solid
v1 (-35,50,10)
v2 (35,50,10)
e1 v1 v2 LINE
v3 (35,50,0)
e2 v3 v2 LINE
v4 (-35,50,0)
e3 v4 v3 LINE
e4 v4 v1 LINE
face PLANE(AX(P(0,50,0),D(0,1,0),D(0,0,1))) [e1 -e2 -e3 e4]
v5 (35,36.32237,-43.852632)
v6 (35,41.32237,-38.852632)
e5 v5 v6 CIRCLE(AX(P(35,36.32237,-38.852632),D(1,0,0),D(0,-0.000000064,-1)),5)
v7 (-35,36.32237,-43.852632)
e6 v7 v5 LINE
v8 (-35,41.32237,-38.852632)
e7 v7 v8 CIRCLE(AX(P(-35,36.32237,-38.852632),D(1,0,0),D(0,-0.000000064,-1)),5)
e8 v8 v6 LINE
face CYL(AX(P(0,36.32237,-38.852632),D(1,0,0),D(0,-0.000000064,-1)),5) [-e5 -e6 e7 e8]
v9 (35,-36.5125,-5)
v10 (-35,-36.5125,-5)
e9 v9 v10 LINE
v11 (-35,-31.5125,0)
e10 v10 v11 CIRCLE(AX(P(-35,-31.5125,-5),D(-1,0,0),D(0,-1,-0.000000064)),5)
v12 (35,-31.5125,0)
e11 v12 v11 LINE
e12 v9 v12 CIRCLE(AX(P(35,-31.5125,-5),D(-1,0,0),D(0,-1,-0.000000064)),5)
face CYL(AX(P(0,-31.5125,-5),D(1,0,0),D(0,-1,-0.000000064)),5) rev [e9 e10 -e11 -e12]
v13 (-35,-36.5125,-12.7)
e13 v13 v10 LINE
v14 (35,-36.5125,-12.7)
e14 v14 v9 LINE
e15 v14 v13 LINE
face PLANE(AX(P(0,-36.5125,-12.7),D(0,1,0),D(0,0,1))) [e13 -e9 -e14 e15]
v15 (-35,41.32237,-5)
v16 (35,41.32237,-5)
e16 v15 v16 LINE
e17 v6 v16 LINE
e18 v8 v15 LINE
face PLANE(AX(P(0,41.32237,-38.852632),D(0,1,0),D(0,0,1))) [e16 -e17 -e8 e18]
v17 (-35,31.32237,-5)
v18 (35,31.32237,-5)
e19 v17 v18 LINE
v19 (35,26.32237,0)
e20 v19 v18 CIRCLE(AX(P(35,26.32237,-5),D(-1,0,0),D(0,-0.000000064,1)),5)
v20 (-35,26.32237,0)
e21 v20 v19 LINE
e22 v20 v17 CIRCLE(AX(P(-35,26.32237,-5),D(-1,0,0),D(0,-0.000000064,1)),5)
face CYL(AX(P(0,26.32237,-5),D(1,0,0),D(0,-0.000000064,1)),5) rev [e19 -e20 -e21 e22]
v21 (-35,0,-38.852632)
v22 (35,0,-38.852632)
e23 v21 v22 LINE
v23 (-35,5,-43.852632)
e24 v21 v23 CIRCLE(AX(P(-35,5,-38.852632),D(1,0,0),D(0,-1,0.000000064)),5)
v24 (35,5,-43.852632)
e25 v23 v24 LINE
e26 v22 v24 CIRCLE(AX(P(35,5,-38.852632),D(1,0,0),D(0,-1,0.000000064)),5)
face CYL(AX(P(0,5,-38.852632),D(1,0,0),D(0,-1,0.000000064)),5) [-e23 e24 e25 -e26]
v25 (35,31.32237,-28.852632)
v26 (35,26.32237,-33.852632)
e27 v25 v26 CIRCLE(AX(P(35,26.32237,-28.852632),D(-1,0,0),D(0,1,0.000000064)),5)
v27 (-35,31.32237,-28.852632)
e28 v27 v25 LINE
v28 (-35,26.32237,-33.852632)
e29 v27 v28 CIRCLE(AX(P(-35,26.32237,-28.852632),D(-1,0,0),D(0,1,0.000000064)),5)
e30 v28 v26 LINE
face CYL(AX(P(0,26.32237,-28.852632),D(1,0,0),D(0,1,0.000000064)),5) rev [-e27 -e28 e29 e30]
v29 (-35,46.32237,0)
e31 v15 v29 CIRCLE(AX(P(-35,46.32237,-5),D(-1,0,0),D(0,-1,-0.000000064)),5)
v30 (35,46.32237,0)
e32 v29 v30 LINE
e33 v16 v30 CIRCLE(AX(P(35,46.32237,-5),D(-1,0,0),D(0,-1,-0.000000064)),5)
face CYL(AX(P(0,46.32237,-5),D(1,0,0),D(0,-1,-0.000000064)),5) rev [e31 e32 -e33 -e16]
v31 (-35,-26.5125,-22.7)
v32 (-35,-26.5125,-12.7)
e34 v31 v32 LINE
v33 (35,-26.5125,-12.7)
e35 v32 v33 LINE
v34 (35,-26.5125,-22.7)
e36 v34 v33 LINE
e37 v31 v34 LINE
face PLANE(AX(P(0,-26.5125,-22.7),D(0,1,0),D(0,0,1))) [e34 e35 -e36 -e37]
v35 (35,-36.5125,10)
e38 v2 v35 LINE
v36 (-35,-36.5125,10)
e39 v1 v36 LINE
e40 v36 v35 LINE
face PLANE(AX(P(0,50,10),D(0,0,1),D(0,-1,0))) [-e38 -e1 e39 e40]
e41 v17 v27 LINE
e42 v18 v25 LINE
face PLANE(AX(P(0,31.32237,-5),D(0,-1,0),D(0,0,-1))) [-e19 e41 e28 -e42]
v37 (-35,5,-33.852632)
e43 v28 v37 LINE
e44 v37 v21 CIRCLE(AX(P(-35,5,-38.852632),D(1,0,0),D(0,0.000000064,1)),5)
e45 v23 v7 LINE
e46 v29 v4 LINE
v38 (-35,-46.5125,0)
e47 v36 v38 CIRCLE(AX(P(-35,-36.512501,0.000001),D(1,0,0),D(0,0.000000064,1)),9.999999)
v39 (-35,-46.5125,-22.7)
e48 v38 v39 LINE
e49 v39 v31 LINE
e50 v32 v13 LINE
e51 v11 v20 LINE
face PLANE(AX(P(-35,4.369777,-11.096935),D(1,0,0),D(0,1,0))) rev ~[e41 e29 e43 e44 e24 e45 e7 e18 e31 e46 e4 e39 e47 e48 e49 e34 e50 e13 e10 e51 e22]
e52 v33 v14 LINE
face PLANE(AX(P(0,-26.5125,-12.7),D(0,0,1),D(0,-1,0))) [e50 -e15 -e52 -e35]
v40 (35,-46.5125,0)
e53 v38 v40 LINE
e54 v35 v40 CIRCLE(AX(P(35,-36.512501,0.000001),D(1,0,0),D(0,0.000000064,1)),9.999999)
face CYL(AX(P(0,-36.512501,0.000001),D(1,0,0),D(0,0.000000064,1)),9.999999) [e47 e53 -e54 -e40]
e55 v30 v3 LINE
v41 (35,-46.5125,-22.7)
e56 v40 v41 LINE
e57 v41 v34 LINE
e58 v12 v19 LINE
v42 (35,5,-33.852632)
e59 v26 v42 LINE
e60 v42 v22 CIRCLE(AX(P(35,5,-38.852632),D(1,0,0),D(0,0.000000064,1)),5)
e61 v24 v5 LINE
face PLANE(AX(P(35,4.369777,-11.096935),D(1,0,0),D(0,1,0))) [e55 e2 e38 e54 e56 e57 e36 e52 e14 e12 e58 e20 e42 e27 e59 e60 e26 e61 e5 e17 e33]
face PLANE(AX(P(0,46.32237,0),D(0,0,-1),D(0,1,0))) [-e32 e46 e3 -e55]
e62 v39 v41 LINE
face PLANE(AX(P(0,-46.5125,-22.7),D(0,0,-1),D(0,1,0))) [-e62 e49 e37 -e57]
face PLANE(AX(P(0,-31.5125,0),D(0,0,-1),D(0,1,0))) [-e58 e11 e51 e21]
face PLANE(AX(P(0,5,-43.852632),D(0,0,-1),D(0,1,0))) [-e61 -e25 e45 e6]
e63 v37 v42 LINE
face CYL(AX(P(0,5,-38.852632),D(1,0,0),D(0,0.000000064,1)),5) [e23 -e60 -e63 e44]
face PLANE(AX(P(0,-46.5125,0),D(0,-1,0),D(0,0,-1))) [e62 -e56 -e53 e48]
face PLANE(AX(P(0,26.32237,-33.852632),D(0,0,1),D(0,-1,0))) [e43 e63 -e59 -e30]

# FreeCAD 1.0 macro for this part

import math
import FreeCAD as App
import Part
import Sketcher
from FreeCAD import Vector
Q = App.Units.Quantity

doc = App.newDocument("Part")
params = doc.addObject("Spreadsheet::Sheet", "Params")
for row, (alias, value) in enumerate([
    ("sketch1_radius", "5 mm"),
    ("sketch1_radius2", "9.999999 mm"),
    ("sketch1_height", "22.7 mm"),
    ("pad1_length", "70 mm"),
], start=1):
    params.set(f"A{row}", alias)
    params.set(f"B{row}", "=" + value)
    params.setAlias(f"B{row}", alias)

body = doc.addObject("PartDesign::Body", "Body")

sketch1 = body.newObject("Sketcher::SketchObject", "Sketch")
sketch1.AttachmentSupport = (doc.getObject("YZ_Plane"), [""])
sketch1.MapMode = "FlatFace"
sketch1.addGeometry(Part.LineSegment(Vector(-31.5, 0, 0), Vector(26.3, 0, 0)), False)
sketch1.addGeometry(Part.ArcOfCircle(Part.Circle(Vector(26.3, -5, 0), Vector(0, 0, 1), 5), math.radians(0), math.radians(90)), False)
sketch1.addGeometry(Part.LineSegment(Vector(31.3, -5, 0), Vector(31.3, -28.9, 0)), False)
sketch1.addGeometry(Part.ArcOfCircle(Part.Circle(Vector(26.3, -28.9, 0), Vector(0, 0, 1), 5), math.radians(-90), math.radians(0)), False)
sketch1.addGeometry(Part.LineSegment(Vector(26.3, -33.9, 0), Vector(5, -33.9, 0)), False)
sketch1.addGeometry(Part.ArcOfCircle(Part.Circle(Vector(5, -38.9, 0), Vector(0, 0, 1), 5), math.radians(90), math.radians(180)), False)
sketch1.addGeometry(Part.ArcOfCircle(Part.Circle(Vector(5, -38.9, 0), Vector(0, 0, 1), 5), math.radians(180), math.radians(270)), False)
sketch1.addGeometry(Part.LineSegment(Vector(5, -43.9, 0), Vector(36.3, -43.9, 0)), False)
sketch1.addGeometry(Part.ArcOfCircle(Part.Circle(Vector(36.3, -38.9, 0), Vector(0, 0, 1), 5), math.radians(-90), math.radians(0)), False)
sketch1.addGeometry(Part.LineSegment(Vector(41.3, -38.9, 0), Vector(41.3, -5, 0)), False)
sketch1.addGeometry(Part.ArcOfCircle(Part.Circle(Vector(46.3, -5, 0), Vector(0, 0, 1), 5), math.radians(90), math.radians(180)), False)
sketch1.addGeometry(Part.LineSegment(Vector(46.3, 0, 0), Vector(50, 0, 0)), False)
sketch1.addGeometry(Part.LineSegment(Vector(50, 0, 0), Vector(50, 10, 0)), False)
sketch1.addGeometry(Part.LineSegment(Vector(50, 10, 0), Vector(-36.5, 10, 0)), False)
sketch1.addGeometry(Part.ArcOfCircle(Part.Circle(Vector(-36.5, 0, 0), Vector(0, 0, 1), 10), math.radians(90), math.radians(180)), False)
sketch1.addGeometry(Part.LineSegment(Vector(-46.5, 0, 0), Vector(-46.5, -22.7, 0)), False)
sketch1.addGeometry(Part.LineSegment(Vector(-46.5, -22.7, 0), Vector(-26.5, -22.7, 0)), False)
sketch1.addGeometry(Part.LineSegment(Vector(-26.5, -22.7, 0), Vector(-26.5, -12.7, 0)), False)
sketch1.addGeometry(Part.LineSegment(Vector(-26.5, -12.7, 0), Vector(-36.5, -12.7, 0)), False)
sketch1.addGeometry(Part.LineSegment(Vector(-36.5, -12.7, 0), Vector(-36.5, -5, 0)), False)
sketch1.addGeometry(Part.ArcOfCircle(Part.Circle(Vector(-31.5, -5, 0), Vector(0, 0, 1), 5), math.radians(90), math.radians(180)), False)
sketch1.addConstraint(Sketcher.Constraint("Tangent", 0, 2, 1, 2))
sketch1.addConstraint(Sketcher.Constraint("Tangent", 1, 1, 2, 1))
sketch1.addConstraint(Sketcher.Constraint("Tangent", 2, 2, 3, 2))
sketch1.addConstraint(Sketcher.Constraint("Tangent", 3, 1, 4, 1))
sketch1.addConstraint(Sketcher.Constraint("Tangent", 4, 2, 5, 1))
sketch1.addConstraint(Sketcher.Constraint("Tangent", 5, 2, 6, 1))
sketch1.addConstraint(Sketcher.Constraint("Tangent", 6, 2, 7, 1))
sketch1.addConstraint(Sketcher.Constraint("Tangent", 7, 2, 8, 1))
sketch1.addConstraint(Sketcher.Constraint("Tangent", 8, 2, 9, 1))
sketch1.addConstraint(Sketcher.Constraint("Tangent", 9, 2, 10, 2))
sketch1.addConstraint(Sketcher.Constraint("Tangent", 10, 1, 11, 1))
sketch1.addConstraint(Sketcher.Constraint("Coincident", 11, 2, 12, 1))
sketch1.addConstraint(Sketcher.Constraint("Coincident", 12, 2, 13, 1))
sketch1.addConstraint(Sketcher.Constraint("Tangent", 13, 2, 14, 1))
sketch1.addConstraint(Sketcher.Constraint("Tangent", 14, 2, 15, 1))
sketch1.addConstraint(Sketcher.Constraint("Coincident", 15, 2, 16, 1))
sketch1.addConstraint(Sketcher.Constraint("Coincident", 16, 2, 17, 1))
sketch1.addConstraint(Sketcher.Constraint("Coincident", 17, 2, 18, 1))
sketch1.addConstraint(Sketcher.Constraint("Coincident", 18, 2, 19, 1))
sketch1.addConstraint(Sketcher.Constraint("Tangent", 19, 2, 20, 2))
sketch1.addConstraint(Sketcher.Constraint("Tangent", 20, 1, 0, 1))
sketch1.addConstraint(Sketcher.Constraint("Horizontal", 0))
sketch1.addConstraint(Sketcher.Constraint("Vertical", 2))
sketch1.addConstraint(Sketcher.Constraint("Horizontal", 4))
sketch1.addConstraint(Sketcher.Constraint("Horizontal", 7))
sketch1.addConstraint(Sketcher.Constraint("Vertical", 9))
sketch1.addConstraint(Sketcher.Constraint("Horizontal", 11))
sketch1.addConstraint(Sketcher.Constraint("Vertical", 12))
sketch1.addConstraint(Sketcher.Constraint("Horizontal", 13))
sketch1.addConstraint(Sketcher.Constraint("Vertical", 15))
sketch1.addConstraint(Sketcher.Constraint("Horizontal", 16))
sketch1.addConstraint(Sketcher.Constraint("Vertical", 17))
sketch1.addConstraint(Sketcher.Constraint("Horizontal", 18))
sketch1.addConstraint(Sketcher.Constraint("Vertical", 19))
sketch1.addConstraint(Sketcher.Constraint("Equal", 1, 3))
sketch1.addConstraint(Sketcher.Constraint("Equal", 3, 5))
sketch1.addConstraint(Sketcher.Constraint("Equal", 5, 6))
sketch1.addConstraint(Sketcher.Constraint("Equal", 6, 8))
sketch1.addConstraint(Sketcher.Constraint("Equal", 8, 10))
sketch1.addConstraint(Sketcher.Constraint("Equal", 10, 20))
sketch1.addConstraint(Sketcher.Constraint("PointOnObject", 14, 3, -1))
sketch1.addConstraint(Sketcher.Constraint("PointOnObject", 0, 2, -1))
sketch1.addConstraint(Sketcher.Constraint("PointOnObject", 5, 2, -2))
sketch1.addConstraint(Sketcher.Constraint("PointOnObject", 10, 1, -1))
sketch1.addConstraint(Sketcher.Constraint("Horizontal", 8, 3, 5, 2))
sketch1.addConstraint(Sketcher.Constraint("Vertical", 13, 2, 18, 2))
sketch1.addConstraint(Sketcher.Constraint("Equal", 18, 12))
sketch1.addConstraint(Sketcher.Constraint("Equal", 12, 17))
sketch1.addConstraint(Sketcher.Constraint("Radius", 1, Q("5 mm")))
sketch1.addConstraint(Sketcher.Constraint("Radius", 14, Q("9.999999 mm")))
sketch1.addConstraint(Sketcher.Constraint("DistanceY", 15, 2, 15, 1, Q("22.7 mm")))
sketch1.addConstraint(Sketcher.Constraint("DistanceX", -1, 1, 11, 2, Q("50 mm")))
sketch1.addConstraint(Sketcher.Constraint("DistanceX", 3, 3, 8, 3, Q("10 mm")))
sketch1.addConstraint(Sketcher.Constraint("DistanceX", 13, 2, 13, 1, Q("86.5125 mm")))
sketch1.addConstraint(Sketcher.Constraint("DistanceX", 0, 1, 0, 2, Q("57.83487 mm")))
sketch1.addConstraint(Sketcher.Constraint("DistanceY", 2, 2, 2, 1, Q("23.852632 mm")))
sketch1.setExpression("Constraints[48]", "Params.sketch1_radius")
sketch1.setExpression("Constraints[49]", "Params.sketch1_radius2")
sketch1.setExpression("Constraints[50]", "Params.sketch1_height")
pad1 = body.newObject("PartDesign::Pad", "Pad")
pad1.Profile = sketch1
pad1.setExpression("Length", "Params.pad1_length")
pad1.Midplane = True

doc.recompute()
